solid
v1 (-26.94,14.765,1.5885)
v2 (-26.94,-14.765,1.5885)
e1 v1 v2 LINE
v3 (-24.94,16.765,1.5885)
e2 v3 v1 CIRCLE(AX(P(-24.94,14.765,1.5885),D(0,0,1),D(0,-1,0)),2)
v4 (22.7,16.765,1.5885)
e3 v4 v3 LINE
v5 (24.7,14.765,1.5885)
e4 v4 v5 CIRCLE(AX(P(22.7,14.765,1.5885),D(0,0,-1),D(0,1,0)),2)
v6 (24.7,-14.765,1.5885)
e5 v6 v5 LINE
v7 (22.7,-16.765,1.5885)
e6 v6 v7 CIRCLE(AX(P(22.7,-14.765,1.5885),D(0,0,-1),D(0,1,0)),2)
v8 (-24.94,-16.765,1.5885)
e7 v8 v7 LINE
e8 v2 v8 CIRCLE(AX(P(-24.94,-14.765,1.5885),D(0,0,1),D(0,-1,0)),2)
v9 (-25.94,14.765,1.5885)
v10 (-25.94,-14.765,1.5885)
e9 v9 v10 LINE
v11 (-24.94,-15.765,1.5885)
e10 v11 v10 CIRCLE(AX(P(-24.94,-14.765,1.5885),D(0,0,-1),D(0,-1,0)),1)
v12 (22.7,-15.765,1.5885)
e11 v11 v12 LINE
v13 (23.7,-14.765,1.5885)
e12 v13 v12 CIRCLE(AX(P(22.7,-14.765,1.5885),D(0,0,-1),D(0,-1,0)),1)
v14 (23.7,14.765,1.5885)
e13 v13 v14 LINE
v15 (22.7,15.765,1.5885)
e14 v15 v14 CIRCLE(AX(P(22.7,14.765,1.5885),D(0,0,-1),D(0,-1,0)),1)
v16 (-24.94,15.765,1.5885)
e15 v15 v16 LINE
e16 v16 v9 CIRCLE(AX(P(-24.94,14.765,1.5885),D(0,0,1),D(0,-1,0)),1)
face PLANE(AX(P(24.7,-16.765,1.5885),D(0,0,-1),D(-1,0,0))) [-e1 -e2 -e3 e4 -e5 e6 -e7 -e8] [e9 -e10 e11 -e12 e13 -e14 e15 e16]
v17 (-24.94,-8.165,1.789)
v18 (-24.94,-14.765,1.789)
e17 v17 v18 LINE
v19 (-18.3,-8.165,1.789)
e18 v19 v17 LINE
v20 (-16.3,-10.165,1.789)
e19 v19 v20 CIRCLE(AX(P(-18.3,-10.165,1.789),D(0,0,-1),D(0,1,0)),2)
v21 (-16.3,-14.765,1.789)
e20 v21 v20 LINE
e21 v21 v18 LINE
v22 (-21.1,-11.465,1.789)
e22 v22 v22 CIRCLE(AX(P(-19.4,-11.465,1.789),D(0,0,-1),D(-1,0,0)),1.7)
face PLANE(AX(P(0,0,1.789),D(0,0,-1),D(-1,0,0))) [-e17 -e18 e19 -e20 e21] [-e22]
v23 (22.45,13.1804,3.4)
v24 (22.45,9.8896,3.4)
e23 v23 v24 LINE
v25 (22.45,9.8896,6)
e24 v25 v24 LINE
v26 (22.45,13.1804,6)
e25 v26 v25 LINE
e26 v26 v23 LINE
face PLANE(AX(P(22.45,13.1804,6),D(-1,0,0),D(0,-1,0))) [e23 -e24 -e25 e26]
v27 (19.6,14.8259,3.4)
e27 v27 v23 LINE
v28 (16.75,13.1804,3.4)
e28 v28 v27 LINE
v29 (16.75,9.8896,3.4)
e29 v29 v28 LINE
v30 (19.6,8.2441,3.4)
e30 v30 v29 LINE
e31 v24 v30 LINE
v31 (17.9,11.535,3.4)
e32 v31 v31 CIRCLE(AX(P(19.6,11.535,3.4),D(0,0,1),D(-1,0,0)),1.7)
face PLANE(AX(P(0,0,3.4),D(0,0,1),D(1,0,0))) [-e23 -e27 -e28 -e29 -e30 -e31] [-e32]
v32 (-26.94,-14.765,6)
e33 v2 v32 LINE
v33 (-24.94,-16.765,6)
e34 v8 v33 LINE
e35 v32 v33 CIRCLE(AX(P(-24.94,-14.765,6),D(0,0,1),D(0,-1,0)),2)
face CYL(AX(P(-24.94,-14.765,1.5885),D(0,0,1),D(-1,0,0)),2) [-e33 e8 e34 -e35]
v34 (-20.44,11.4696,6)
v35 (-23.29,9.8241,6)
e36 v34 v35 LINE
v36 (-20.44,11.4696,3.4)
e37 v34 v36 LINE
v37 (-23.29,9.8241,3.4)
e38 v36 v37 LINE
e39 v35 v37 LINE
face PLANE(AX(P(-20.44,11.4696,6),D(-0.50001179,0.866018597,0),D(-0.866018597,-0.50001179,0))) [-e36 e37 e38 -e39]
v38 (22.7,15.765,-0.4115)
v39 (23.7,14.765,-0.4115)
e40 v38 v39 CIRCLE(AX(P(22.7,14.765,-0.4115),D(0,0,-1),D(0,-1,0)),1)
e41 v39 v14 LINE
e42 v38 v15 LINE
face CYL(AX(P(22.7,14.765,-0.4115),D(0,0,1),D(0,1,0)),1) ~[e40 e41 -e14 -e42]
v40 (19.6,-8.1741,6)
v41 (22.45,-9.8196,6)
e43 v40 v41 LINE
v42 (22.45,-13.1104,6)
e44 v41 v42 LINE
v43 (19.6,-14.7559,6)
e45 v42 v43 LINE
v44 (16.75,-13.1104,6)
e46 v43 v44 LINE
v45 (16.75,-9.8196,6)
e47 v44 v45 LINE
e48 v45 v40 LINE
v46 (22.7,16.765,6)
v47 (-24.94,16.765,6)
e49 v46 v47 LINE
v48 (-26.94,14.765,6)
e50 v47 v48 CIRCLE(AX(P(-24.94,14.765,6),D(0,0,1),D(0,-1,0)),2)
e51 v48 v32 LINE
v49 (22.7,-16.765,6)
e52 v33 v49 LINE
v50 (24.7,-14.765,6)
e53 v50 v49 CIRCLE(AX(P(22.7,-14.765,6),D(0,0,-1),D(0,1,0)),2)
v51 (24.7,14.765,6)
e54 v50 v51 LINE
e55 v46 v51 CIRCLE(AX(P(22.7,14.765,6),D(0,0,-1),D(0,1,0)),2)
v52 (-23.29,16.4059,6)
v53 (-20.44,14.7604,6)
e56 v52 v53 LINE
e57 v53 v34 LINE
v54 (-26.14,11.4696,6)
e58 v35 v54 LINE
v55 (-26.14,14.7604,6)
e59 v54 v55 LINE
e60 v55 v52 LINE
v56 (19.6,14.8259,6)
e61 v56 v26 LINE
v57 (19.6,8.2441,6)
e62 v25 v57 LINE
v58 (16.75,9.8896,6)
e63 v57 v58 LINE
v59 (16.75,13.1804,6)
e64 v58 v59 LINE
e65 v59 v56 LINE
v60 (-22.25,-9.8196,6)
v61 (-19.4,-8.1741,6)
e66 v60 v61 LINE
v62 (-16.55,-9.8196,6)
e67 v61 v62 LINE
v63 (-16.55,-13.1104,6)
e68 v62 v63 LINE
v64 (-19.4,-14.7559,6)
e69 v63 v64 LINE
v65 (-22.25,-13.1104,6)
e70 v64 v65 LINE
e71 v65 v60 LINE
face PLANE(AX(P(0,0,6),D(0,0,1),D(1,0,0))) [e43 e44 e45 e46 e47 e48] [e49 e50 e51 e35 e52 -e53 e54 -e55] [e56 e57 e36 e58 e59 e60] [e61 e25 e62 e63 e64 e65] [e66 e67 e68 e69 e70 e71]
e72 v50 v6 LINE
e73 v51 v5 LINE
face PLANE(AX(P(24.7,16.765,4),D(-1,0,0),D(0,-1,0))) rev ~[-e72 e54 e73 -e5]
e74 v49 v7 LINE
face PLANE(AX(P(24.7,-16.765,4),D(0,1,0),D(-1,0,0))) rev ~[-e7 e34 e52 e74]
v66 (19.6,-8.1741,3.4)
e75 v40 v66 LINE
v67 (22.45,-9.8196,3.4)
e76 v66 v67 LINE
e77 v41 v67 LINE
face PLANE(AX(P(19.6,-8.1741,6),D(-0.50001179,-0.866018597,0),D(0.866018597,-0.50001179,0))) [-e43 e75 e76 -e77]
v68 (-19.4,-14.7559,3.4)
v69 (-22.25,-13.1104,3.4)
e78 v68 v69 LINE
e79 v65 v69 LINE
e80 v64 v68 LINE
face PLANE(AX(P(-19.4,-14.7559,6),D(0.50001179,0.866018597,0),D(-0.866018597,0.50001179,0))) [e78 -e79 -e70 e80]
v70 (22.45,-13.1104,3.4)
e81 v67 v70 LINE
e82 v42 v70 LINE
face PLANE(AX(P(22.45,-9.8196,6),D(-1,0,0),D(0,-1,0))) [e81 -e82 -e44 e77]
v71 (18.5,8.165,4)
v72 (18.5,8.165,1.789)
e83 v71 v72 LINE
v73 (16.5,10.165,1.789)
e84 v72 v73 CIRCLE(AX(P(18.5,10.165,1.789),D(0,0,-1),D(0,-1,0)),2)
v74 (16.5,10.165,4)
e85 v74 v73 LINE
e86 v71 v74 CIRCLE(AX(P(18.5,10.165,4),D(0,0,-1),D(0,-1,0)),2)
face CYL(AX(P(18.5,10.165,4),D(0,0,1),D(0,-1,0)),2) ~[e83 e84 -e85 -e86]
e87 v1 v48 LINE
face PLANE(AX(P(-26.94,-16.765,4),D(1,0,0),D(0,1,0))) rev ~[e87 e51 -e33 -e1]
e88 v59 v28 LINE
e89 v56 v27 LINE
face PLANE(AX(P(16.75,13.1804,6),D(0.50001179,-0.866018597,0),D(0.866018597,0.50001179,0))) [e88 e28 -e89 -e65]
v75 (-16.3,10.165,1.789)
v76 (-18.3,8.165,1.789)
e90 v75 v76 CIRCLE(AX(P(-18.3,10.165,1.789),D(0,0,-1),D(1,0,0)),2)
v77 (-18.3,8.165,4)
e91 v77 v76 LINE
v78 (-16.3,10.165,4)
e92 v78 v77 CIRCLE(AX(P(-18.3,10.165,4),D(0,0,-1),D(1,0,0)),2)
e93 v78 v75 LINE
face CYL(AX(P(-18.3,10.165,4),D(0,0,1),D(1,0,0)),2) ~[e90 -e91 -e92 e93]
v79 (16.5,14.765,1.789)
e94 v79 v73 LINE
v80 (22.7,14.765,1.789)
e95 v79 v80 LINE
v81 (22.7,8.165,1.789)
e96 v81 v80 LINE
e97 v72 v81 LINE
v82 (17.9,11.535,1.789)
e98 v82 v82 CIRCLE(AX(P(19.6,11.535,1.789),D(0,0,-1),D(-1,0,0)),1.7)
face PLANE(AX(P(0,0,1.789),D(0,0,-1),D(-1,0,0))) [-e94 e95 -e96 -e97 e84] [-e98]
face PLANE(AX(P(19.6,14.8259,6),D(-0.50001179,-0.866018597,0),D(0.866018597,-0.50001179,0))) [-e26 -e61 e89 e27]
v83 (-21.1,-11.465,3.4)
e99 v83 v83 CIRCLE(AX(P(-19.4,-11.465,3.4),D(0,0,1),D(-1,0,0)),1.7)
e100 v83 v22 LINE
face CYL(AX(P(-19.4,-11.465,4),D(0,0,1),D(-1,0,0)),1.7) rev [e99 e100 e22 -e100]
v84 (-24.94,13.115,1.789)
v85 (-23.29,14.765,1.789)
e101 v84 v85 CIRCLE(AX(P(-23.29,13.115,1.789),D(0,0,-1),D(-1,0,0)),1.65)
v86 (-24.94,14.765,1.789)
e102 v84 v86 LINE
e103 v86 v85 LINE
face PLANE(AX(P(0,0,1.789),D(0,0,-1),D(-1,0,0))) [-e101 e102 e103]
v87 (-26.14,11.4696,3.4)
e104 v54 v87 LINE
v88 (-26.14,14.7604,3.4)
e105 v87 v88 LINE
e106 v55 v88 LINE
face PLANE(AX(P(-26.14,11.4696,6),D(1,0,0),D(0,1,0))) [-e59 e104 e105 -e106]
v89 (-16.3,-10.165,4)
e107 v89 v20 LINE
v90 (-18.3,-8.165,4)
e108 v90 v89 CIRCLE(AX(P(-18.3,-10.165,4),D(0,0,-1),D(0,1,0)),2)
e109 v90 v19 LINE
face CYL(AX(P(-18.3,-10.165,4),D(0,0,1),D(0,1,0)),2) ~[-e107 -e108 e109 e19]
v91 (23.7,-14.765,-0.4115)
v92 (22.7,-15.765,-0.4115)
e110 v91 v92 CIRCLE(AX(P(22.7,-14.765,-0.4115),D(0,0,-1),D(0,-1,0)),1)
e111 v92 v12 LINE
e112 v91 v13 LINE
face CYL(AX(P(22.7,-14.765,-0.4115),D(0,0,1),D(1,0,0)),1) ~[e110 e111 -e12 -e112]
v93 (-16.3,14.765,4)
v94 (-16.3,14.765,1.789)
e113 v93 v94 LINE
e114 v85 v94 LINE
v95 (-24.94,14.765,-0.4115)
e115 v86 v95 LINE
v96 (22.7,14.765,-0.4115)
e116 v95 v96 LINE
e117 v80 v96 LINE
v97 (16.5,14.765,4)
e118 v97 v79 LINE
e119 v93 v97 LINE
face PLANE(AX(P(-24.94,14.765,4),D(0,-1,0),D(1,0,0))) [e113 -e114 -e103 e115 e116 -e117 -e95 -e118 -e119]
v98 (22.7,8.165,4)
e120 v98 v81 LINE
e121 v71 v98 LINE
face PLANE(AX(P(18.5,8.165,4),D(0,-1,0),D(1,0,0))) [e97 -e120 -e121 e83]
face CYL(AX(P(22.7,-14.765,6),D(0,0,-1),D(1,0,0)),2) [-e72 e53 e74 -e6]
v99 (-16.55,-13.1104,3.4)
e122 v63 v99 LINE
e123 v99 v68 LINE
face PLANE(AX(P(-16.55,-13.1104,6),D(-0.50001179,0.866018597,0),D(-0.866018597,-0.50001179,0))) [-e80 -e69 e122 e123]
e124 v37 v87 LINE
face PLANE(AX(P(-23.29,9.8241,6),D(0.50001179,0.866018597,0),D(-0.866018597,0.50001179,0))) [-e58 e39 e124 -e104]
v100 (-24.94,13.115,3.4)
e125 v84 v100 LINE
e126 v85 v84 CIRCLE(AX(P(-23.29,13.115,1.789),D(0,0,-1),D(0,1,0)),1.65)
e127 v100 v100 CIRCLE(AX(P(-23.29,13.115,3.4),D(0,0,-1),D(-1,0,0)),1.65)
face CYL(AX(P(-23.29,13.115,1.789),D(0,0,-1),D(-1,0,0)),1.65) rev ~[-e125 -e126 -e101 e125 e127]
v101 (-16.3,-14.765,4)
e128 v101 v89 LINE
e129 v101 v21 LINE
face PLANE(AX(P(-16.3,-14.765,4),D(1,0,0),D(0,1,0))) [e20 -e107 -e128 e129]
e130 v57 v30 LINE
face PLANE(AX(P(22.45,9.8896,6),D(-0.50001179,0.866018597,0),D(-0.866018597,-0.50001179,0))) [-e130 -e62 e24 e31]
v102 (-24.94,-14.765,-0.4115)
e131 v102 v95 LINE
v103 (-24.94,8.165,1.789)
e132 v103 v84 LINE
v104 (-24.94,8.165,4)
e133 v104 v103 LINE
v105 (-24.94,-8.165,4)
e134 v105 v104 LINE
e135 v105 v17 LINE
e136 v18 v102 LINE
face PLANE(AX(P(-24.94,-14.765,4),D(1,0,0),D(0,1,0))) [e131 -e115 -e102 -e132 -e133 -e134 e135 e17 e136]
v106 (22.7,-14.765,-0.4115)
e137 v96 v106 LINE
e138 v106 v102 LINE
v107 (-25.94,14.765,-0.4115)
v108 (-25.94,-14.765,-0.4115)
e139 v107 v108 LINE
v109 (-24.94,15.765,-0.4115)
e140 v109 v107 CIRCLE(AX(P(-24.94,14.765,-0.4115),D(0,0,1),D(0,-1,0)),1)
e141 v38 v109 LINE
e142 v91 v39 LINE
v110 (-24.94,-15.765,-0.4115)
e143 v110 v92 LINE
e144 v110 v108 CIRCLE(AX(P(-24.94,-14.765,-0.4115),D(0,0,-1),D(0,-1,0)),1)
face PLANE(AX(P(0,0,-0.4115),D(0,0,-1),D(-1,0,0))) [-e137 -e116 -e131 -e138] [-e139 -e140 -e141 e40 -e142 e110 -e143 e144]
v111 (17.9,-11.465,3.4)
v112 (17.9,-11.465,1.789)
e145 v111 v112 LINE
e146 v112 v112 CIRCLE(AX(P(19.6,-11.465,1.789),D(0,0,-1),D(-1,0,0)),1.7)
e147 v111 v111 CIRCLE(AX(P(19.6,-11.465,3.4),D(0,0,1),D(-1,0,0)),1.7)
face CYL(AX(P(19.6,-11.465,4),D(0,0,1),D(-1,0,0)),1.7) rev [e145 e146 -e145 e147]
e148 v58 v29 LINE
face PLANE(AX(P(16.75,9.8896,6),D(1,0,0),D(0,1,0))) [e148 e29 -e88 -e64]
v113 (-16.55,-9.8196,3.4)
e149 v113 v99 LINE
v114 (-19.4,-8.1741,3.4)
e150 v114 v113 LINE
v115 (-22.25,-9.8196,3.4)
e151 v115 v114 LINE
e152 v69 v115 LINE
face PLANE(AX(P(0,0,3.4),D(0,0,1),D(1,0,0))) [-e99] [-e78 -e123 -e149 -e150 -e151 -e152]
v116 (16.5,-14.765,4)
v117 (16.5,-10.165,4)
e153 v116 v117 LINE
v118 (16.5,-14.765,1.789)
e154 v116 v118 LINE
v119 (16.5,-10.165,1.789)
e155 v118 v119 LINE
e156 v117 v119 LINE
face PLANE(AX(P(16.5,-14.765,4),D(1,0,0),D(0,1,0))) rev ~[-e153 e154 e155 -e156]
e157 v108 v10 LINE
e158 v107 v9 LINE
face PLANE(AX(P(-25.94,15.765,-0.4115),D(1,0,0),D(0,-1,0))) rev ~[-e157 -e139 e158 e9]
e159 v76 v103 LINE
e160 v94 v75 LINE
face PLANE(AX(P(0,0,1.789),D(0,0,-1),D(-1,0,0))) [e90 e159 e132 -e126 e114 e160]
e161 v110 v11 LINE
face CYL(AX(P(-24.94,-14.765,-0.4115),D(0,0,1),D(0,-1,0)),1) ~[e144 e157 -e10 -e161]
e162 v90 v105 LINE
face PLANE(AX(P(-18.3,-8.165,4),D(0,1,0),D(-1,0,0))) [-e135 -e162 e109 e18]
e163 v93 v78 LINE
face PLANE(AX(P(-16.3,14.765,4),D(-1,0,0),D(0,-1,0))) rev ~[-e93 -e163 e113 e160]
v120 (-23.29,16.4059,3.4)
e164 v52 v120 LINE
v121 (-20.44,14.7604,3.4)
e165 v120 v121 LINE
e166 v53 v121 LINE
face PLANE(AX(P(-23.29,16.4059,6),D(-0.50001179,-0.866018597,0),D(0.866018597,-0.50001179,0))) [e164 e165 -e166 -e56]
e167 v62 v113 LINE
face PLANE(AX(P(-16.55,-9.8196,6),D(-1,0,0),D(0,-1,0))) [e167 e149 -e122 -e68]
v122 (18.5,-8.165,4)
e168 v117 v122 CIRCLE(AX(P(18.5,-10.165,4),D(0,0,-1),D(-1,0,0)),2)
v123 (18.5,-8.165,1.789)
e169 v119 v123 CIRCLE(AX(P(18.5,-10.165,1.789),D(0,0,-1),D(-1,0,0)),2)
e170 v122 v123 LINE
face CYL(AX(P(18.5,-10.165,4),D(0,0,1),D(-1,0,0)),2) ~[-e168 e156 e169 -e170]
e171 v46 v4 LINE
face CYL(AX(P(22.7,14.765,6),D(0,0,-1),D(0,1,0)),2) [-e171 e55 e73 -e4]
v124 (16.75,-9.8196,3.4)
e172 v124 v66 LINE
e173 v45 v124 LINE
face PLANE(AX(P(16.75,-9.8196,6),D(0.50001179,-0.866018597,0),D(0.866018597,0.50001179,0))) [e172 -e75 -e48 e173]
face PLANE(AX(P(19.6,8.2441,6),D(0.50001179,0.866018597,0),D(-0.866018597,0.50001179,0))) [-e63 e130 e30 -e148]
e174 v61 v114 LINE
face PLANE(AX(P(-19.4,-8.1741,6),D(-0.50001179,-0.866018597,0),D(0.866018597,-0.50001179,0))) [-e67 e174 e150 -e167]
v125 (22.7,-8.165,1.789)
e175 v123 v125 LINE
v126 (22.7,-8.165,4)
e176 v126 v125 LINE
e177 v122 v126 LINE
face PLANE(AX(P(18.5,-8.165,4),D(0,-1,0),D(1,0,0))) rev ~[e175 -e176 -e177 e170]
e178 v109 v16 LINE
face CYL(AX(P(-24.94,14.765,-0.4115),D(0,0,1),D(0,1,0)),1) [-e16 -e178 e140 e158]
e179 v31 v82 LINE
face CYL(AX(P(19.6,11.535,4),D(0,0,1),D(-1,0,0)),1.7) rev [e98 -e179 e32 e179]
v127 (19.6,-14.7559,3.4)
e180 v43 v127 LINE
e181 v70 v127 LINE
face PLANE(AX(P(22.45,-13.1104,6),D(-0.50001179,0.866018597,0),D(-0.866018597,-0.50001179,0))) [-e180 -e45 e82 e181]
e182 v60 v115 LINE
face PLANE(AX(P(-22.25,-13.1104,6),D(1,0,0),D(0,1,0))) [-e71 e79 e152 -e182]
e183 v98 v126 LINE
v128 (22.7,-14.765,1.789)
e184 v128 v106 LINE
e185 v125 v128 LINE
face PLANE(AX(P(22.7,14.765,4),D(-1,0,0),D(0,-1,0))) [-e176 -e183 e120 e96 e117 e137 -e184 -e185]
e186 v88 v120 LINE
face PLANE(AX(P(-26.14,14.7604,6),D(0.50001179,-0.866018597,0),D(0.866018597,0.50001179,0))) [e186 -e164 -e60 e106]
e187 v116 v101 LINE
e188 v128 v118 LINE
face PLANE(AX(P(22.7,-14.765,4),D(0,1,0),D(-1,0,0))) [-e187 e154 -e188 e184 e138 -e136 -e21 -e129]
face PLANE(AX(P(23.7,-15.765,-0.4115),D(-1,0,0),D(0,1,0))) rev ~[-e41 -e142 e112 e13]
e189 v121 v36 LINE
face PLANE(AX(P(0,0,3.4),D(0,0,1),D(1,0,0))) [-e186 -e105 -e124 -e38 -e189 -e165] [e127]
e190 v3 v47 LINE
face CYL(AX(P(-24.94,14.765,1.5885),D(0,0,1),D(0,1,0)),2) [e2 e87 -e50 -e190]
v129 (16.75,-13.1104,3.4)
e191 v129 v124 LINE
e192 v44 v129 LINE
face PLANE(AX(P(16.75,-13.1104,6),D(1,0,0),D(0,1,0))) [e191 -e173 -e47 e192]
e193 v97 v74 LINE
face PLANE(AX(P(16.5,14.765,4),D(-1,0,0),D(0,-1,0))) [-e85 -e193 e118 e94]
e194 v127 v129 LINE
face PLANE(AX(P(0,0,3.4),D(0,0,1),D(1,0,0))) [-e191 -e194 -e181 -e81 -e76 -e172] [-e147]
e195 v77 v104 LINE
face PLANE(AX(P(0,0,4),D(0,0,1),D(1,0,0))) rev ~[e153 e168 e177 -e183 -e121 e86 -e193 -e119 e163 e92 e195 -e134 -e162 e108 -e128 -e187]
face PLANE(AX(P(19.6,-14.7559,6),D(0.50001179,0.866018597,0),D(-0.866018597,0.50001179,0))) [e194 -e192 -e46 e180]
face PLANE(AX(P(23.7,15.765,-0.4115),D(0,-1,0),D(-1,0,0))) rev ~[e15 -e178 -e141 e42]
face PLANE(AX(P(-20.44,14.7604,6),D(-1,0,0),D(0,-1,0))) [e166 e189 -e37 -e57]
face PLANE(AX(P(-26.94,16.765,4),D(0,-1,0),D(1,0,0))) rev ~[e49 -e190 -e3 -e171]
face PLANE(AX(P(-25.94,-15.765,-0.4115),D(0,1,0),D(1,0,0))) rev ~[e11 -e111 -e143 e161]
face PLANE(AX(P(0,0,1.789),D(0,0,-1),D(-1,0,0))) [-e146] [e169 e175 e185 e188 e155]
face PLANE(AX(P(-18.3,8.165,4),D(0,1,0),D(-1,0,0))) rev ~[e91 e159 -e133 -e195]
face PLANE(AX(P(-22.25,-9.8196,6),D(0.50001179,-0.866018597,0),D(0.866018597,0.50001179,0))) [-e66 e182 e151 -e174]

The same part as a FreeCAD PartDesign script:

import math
import FreeCAD as App
import Part
import Sketcher
Q = App.Units.Quantity


def edges_at(feature, points):
    """Names of the edges that pass closest to the given points."""
    edges = feature.Shape.Edges
    near = lambda p: min(range(len(edges)), key=lambda i: edges[i].distToShape(Part.Vertex(*p))[0])
    return sorted({f"Edge{near(p) + 1}" for p in points})

doc = App.newDocument("Part")
params = doc.addObject("Spreadsheet::Sheet", "Params")
for row, (alias, value) in enumerate([
    ("sketch1_width", "51.64 mm"),
    ("sketch1_height", "33.53 mm"),
    ("pad1_length", "2 mm"),
    ("sketch2_width", "51.64 mm"),
    ("sketch2_height", "33.53 mm"),
    ("pad2_length", "4.4115 mm"),
    ("sketch3_width", "51.64 mm"),
    ("sketch3_height", "33.53 mm"),
    ("pocket1_length", "2 mm"),
    ("sketch4_radius", "2 mm"),
    ("sketch4_width", "6.2 mm"),
    ("sketch4_height", "6.6 mm"),
    ("sketch4_diameter", "3.4 mm"),
    ("sketch4_width2", "8.64 mm"),
    ("pad3_length", "2.211 mm"),
    ("sketch5_diameter", "3.4 mm"),
    ("pocket2_length", "2 mm"),
    ("pocket3_length", "2.6 mm"),
    ("fillet_radius", "2 mm"),
    ("fillet2_radius", "1 mm"),
    ("sketch7_diameter", "3.3 mm"),
    ("pocket4_length", "10 mm"),
    ("pocket5_length", "2.6 mm"),
], start=1):
    params.set(f"A{row}", alias)
    params.set(f"B{row}", "=" + value)
    params.setAlias(f"B{row}", alias)

body = doc.addObject("PartDesign::Body", "Body")

# Sketch on XY plane
sketch1 = body.newObject("Sketcher::SketchObject", "Sketch")
sketch1.AttachmentSupport = (doc.getObject("XY_Plane"), [""])
sketch1.MapMode = "FlatFace"
sketch1.AttachmentOffset = App.Placement(App.Vector(0, 0, 6), App.Rotation())
sketch1.addGeometry([
    Part.LineSegment(App.Vector(24.7, 16.765, 0), App.Vector(-26.94, 16.765, 0)),
    Part.LineSegment(App.Vector(-26.94, 16.765, 0), App.Vector(-26.94, -16.765, 0)),
    Part.LineSegment(App.Vector(-26.94, -16.765, 0), App.Vector(24.7, -16.765, 0)),
    Part.LineSegment(App.Vector(24.7, -16.765, 0), App.Vector(24.7, 16.765, 0)),
], False)
sketch1.addConstraint([
    Sketcher.Constraint("Coincident", 0, 2, 1, 1),
    Sketcher.Constraint("Coincident", 1, 2, 2, 1),
    Sketcher.Constraint("Coincident", 2, 2, 3, 1),
    Sketcher.Constraint("Coincident", 3, 2, 0, 1),
    Sketcher.Constraint("Horizontal", 0),
    Sketcher.Constraint("Vertical", 1),
    Sketcher.Constraint("Horizontal", 2),
    Sketcher.Constraint("Vertical", 3),
    Sketcher.Constraint("DistanceX", 0, 2, 0, 1, 51.64),
    Sketcher.Constraint("DistanceY", 1, 2, 1, 1, 33.53),
    Sketcher.Constraint("DistanceX", -1, 1, 2, 2, 24.7),
    Sketcher.Constraint("DistanceY", -1, 1, 0, 2, 16.765),
])
sketch1.setExpression("Constraints[8]", "Params.sketch1_width")
sketch1.setExpression("Constraints[9]", "Params.sketch1_height")
pad1 = body.newObject("PartDesign::Pad", "Pad")
pad1.Profile = sketch1
pad1.setExpression("Length", "Params.pad1_length")
pad1.Reversed = True

# Sketch on XY plane
sketch2 = body.newObject("Sketcher::SketchObject", "Sketch001")
sketch2.AttachmentSupport = (doc.getObject("XY_Plane"), [""])
sketch2.MapMode = "FlatFace"
sketch2.AttachmentOffset = App.Placement(App.Vector(0, 0, 4), App.Rotation())
sketch2.addGeometry([
    Part.LineSegment(App.Vector(-26.94, 16.765, 0), App.Vector(24.7, 16.765, 0)),  # 0
    Part.LineSegment(App.Vector(24.7, 16.765, 0), App.Vector(24.7, -16.765, 0)),  # 1
    Part.LineSegment(App.Vector(24.7, -16.765, 0), App.Vector(-26.94, -16.765, 0)),  # 2
    Part.LineSegment(App.Vector(-26.94, -16.765, 0), App.Vector(-26.94, 16.765, 0)),  # 3
    Part.LineSegment(App.Vector(22.7, -14.765, 0), App.Vector(22.7, 14.765, 0)),  # 4
    Part.LineSegment(App.Vector(22.7, 14.765, 0), App.Vector(-24.94, 14.765, 0)),  # 5
    Part.LineSegment(App.Vector(-24.94, 14.765, 0), App.Vector(-24.94, -14.765, 0)),  # 6
    Part.LineSegment(App.Vector(-24.94, -14.765, 0), App.Vector(22.7, -14.765, 0)),  # 7
], False)
sketch2.addConstraint([
    Sketcher.Constraint("Coincident", 0, 2, 1, 1),
    Sketcher.Constraint("Coincident", 1, 2, 2, 1),
    Sketcher.Constraint("Coincident", 2, 2, 3, 1),
    Sketcher.Constraint("Coincident", 3, 2, 0, 1),
    Sketcher.Constraint("Coincident", 4, 2, 5, 1),
    Sketcher.Constraint("Coincident", 5, 2, 6, 1),
    Sketcher.Constraint("Coincident", 6, 2, 7, 1),
    Sketcher.Constraint("Coincident", 7, 2, 4, 1),
    Sketcher.Constraint("Horizontal", 0),
    Sketcher.Constraint("Vertical", 1),
    Sketcher.Constraint("Horizontal", 2),
    Sketcher.Constraint("Vertical", 3),
    Sketcher.Constraint("Vertical", 4),
    Sketcher.Constraint("Horizontal", 5),
    Sketcher.Constraint("Vertical", 6),
    Sketcher.Constraint("Horizontal", 7),
    Sketcher.Constraint("DistanceX", 4, 2, 0, 2, 2.0),
    Sketcher.Constraint("DistanceY", 4, 2, 0, 2, 2.0),
    Sketcher.Constraint("DistanceX", 3, 2, 5, 2, 2.0),
    Sketcher.Constraint("DistanceY", 2, 2, 6, 2, 2.0),
    Sketcher.Constraint("DistanceX", 0, 1, 0, 2, 51.64),
    Sketcher.Constraint("DistanceY", 1, 2, 1, 1, 33.53),
    Sketcher.Constraint("DistanceX", -1, 1, 0, 2, 24.7),
    Sketcher.Constraint("DistanceY", -1, 1, 0, 2, 16.765),
])
sketch2.setExpression("Constraints[20]", "Params.sketch2_width")
sketch2.setExpression("Constraints[21]", "Params.sketch2_height")
pad2 = body.newObject("PartDesign::Pad", "Pad001")
pad2.Profile = sketch2
pad2.setExpression("Length", "Params.pad2_length")
pad2.Reversed = True

# Sketch on XY plane
sketch3 = body.newObject("Sketcher::SketchObject", "Sketch002")
sketch3.AttachmentSupport = (doc.getObject("XY_Plane"), [""])
sketch3.MapMode = "FlatFace"
sketch3.AttachmentOffset = App.Placement(App.Vector(0, 0, -0.4115), App.Rotation())
sketch3.addGeometry([
    Part.LineSegment(App.Vector(24.7, 16.765, 0), App.Vector(24.7, -16.765, 0)),  # 0
    Part.LineSegment(App.Vector(24.7, -16.765, 0), App.Vector(-26.94, -16.765, 0)),  # 1
    Part.LineSegment(App.Vector(-26.94, -16.765, 0), App.Vector(-26.94, 16.765, 0)),  # 2
    Part.LineSegment(App.Vector(-26.94, 16.765, 0), App.Vector(24.7, 16.765, 0)),  # 3
    Part.LineSegment(App.Vector(23.7, 15.765, 0), App.Vector(-25.94, 15.765, 0)),  # 4
    Part.LineSegment(App.Vector(-25.94, 15.765, 0), App.Vector(-25.94, -15.765, 0)),  # 5
    Part.LineSegment(App.Vector(-25.94, -15.765, 0), App.Vector(23.7, -15.765, 0)),  # 6
    Part.LineSegment(App.Vector(23.7, -15.765, 0), App.Vector(23.7, 15.765, 0)),  # 7
], False)
sketch3.addConstraint([
    Sketcher.Constraint("Coincident", 0, 2, 1, 1),
    Sketcher.Constraint("Coincident", 1, 2, 2, 1),
    Sketcher.Constraint("Coincident", 2, 2, 3, 1),
    Sketcher.Constraint("Coincident", 3, 2, 0, 1),
    Sketcher.Constraint("Coincident", 4, 2, 5, 1),
    Sketcher.Constraint("Coincident", 5, 2, 6, 1),
    Sketcher.Constraint("Coincident", 6, 2, 7, 1),
    Sketcher.Constraint("Coincident", 7, 2, 4, 1),
    Sketcher.Constraint("Vertical", 0),
    Sketcher.Constraint("Horizontal", 1),
    Sketcher.Constraint("Vertical", 2),
    Sketcher.Constraint("Horizontal", 3),
    Sketcher.Constraint("Horizontal", 4),
    Sketcher.Constraint("Vertical", 5),
    Sketcher.Constraint("Horizontal", 6),
    Sketcher.Constraint("Vertical", 7),
    Sketcher.Constraint("DistanceX", 2, 2, 4, 2, 1.0),
    Sketcher.Constraint("DistanceY", 4, 2, 2, 2, 1.0),
    Sketcher.Constraint("DistanceY", 1, 2, 5, 2, 1.0),
    Sketcher.Constraint("DistanceX", 6, 2, 0, 2, 1.0),
    Sketcher.Constraint("DistanceX", 1, 2, 1, 1, 51.64),
    Sketcher.Constraint("DistanceY", 0, 2, 0, 1, 33.53),
    Sketcher.Constraint("DistanceX", -1, 1, 0, 2, 24.7),
    Sketcher.Constraint("DistanceY", 0, 2, -1, 1, 16.765),
])
sketch3.setExpression("Constraints[20]", "Params.sketch3_width")
sketch3.setExpression("Constraints[21]", "Params.sketch3_height")
pocket1 = body.newObject("PartDesign::Pocket", "Pocket")
pocket1.Profile = sketch3
pocket1.setExpression("Length", "Params.pocket1_length")
pocket1.Reversed = True

# Sketch on XY plane
sketch4 = body.newObject("Sketcher::SketchObject", "Sketch003")
sketch4.AttachmentSupport = (doc.getObject("XY_Plane"), [""])
sketch4.MapMode = "FlatFace"
sketch4.AttachmentOffset = App.Placement(App.Vector(0, 0, 4), App.Rotation())
sketch4.addGeometry([
    Part.LineSegment(App.Vector(22.7, -8.165, 0), App.Vector(22.7, -14.765, 0)),  # 0
    Part.LineSegment(App.Vector(22.7, -14.765, 0), App.Vector(16.5, -14.765, 0)),  # 1
    Part.LineSegment(App.Vector(16.5, -14.765, 0), App.Vector(16.5, -10.165, 0)),  # 2
    Part.ArcOfCircle(Part.Circle(App.Vector(18.5, -10.165, 0), App.Vector(0, 0, 1), 2), math.radians(90), math.radians(180)),  # 3
    Part.LineSegment(App.Vector(18.5, -8.165, 0), App.Vector(22.7, -8.165, 0)),  # 4
    Part.Circle(App.Vector(19.6, -11.465, 0), App.Vector(0, 0, 1), 1.7),  # 5
    Part.LineSegment(App.Vector(-16.3, -10.165, 0), App.Vector(-16.3, -14.765, 0)),  # 6
    Part.LineSegment(App.Vector(-16.3, -14.765, 0), App.Vector(-24.94, -14.765, 0)),  # 7
    Part.LineSegment(App.Vector(-24.94, -14.765, 0), App.Vector(-24.94, -8.165, 0)),  # 8
    Part.LineSegment(App.Vector(-24.94, -8.165, 0), App.Vector(-18.3, -8.165, 0)),  # 9
    Part.ArcOfCircle(Part.Circle(App.Vector(-18.3, -10.165, 0), App.Vector(0, 0, 1), 2), math.radians(0), math.radians(90)),  # 10
    Part.Circle(App.Vector(-19.4, -11.465, 0), App.Vector(0, 0, 1), 1.7),  # 11
    Part.LineSegment(App.Vector(-24.94, 8.165, 0), App.Vector(-24.94, 14.765, 0)),  # 12
    Part.LineSegment(App.Vector(-24.94, 14.765, 0), App.Vector(-16.3, 14.765, 0)),  # 13
    Part.LineSegment(App.Vector(-16.3, 14.765, 0), App.Vector(-16.3, 10.165, 0)),  # 14
    Part.ArcOfCircle(Part.Circle(App.Vector(-18.3, 10.165, 0), App.Vector(0, 0, 1), 2), math.radians(-90), math.radians(0)),  # 15
    Part.LineSegment(App.Vector(-18.3, 8.165, 0), App.Vector(-24.94, 8.165, 0)),  # 16
    Part.LineSegment(App.Vector(16.5, 10.165, 0), App.Vector(16.5, 14.765, 0)),  # 17
    Part.LineSegment(App.Vector(16.5, 14.765, 0), App.Vector(22.7, 14.765, 0)),  # 18
    Part.LineSegment(App.Vector(22.7, 14.765, 0), App.Vector(22.7, 8.165, 0)),  # 19
    Part.LineSegment(App.Vector(22.7, 8.165, 0), App.Vector(18.5, 8.165, 0)),  # 20
    Part.ArcOfCircle(Part.Circle(App.Vector(18.5, 10.165, 0), App.Vector(0, 0, 1), 2), math.radians(180), math.radians(270)),  # 21
    Part.Circle(App.Vector(19.6, 11.535, 0), App.Vector(0, 0, 1), 1.7),  # 22
], False)
sketch4.addConstraint([
    Sketcher.Constraint("Coincident", 0, 2, 1, 1),
    Sketcher.Constraint("Coincident", 1, 2, 2, 1),
    Sketcher.Constraint("Tangent", 2, 2, 3, 2),
    Sketcher.Constraint("Tangent", 3, 1, 4, 1),
    Sketcher.Constraint("Coincident", 4, 2, 0, 1),
    Sketcher.Constraint("Coincident", 6, 2, 7, 1),
    Sketcher.Constraint("Coincident", 7, 2, 8, 1),
    Sketcher.Constraint("Coincident", 8, 2, 9, 1),
    Sketcher.Constraint("Tangent", 9, 2, 10, 2),
    Sketcher.Constraint("Tangent", 10, 1, 6, 1),
    Sketcher.Constraint("Coincident", 12, 2, 13, 1),
    Sketcher.Constraint("Coincident", 13, 2, 14, 1),
    Sketcher.Constraint("Tangent", 14, 2, 15, 2),
    Sketcher.Constraint("Tangent", 15, 1, 16, 1),
    Sketcher.Constraint("Coincident", 16, 2, 12, 1),
    Sketcher.Constraint("Coincident", 17, 2, 18, 1),
    Sketcher.Constraint("Coincident", 18, 2, 19, 1),
    Sketcher.Constraint("Coincident", 19, 2, 20, 1),
    Sketcher.Constraint("Tangent", 20, 2, 21, 2),
    Sketcher.Constraint("Tangent", 21, 1, 17, 1),
    Sketcher.Constraint("Vertical", 0),
    Sketcher.Constraint("Horizontal", 1),
    Sketcher.Constraint("Vertical", 2),
    Sketcher.Constraint("Horizontal", 4),
    Sketcher.Constraint("Vertical", 6),
    Sketcher.Constraint("Horizontal", 7),
    Sketcher.Constraint("Vertical", 8),
    Sketcher.Constraint("Horizontal", 9),
    Sketcher.Constraint("Vertical", 12),
    Sketcher.Constraint("Horizontal", 13),
    Sketcher.Constraint("Vertical", 14),
    Sketcher.Constraint("Horizontal", 16),
    Sketcher.Constraint("Vertical", 17),
    Sketcher.Constraint("Horizontal", 18),
    Sketcher.Constraint("Vertical", 19),
    Sketcher.Constraint("Horizontal", 20),
    Sketcher.Constraint("Equal", 3, 10),
    Sketcher.Constraint("Equal", 5, 11),
    Sketcher.Constraint("Equal", 10, 15),
    Sketcher.Constraint("Equal", 15, 21),
    Sketcher.Constraint("Equal", 11, 22),
    Sketcher.Constraint("Symmetric", 10, 3, 15, 3, -1),
    Sketcher.Constraint("Symmetric", 3, 3, 21, 3, -1),
    Sketcher.Constraint("Symmetric", 7, 2, 12, 2, -1),
    Sketcher.Constraint("Symmetric", 0, 2, 18, 2, -1),
    Sketcher.Constraint("Horizontal", 3, 3, 10, 3),
    Sketcher.Constraint("Horizontal", 5, 3, 11, 3),
    Sketcher.Constraint("Horizontal", 1, 2, 6, 2),
    Sketcher.Constraint("Vertical", 5, 3, 22, 3),
    Sketcher.Constraint("Radius", 3, 2.0),
    Sketcher.Constraint("DistanceX", 1, 2, 1, 1, 6.2),
    Sketcher.Constraint("DistanceY", 0, 2, 0, 1, 6.6),
    Sketcher.Constraint("Diameter", 5, 3.4),
    Sketcher.Constraint("DistanceX", 5, 3, 0, 2, 3.1),
    Sketcher.Constraint("DistanceY", 0, 2, 5, 3, 3.3),
    Sketcher.Constraint("DistanceX", 11, 3, 6, 2, 3.1),
    Sketcher.Constraint("DistanceX", 11, 3, 5, 3, 39.0),
    Sketcher.Constraint("DistanceY", 5, 3, 22, 3, 23.0),
    Sketcher.Constraint("DistanceX", 7, 2, 7, 1, 8.64),
    Sketcher.Constraint("DistanceX", -1, 1, 3, 3, 18.5),
    Sketcher.Constraint("DistanceY", 10, 3, 15, 3, 20.33),
])
sketch4.setExpression("Constraints[49]", "Params.sketch4_radius")
sketch4.setExpression("Constraints[50]", "Params.sketch4_width")
sketch4.setExpression("Constraints[51]", "Params.sketch4_height")
sketch4.setExpression("Constraints[52]", "Params.sketch4_diameter")
sketch4.setExpression("Constraints[58]", "Params.sketch4_width2")
pad3 = body.newObject("PartDesign::Pad", "Pad002")
pad3.Profile = sketch4
pad3.setExpression("Length", "Params.pad3_length")
pad3.Reversed = True

# Sketch on XY plane
sketch5 = body.newObject("Sketcher::SketchObject", "Sketch004")
sketch5.AttachmentSupport = (doc.getObject("XY_Plane"), [""])
sketch5.MapMode = "FlatFace"
sketch5.AttachmentOffset = App.Placement(App.Vector(0, 0, 4), App.Rotation())
sketch5.addGeometry([
    Part.Circle(App.Vector(19.6, 11.535, 0), App.Vector(0, 0, 1), 1.7),
    Part.Circle(App.Vector(19.6, -11.465, 0), App.Vector(0, 0, 1), 1.7),
    Part.Circle(App.Vector(-19.4, -11.465, 0), App.Vector(0, 0, 1), 1.7),
], False)
sketch5.addConstraint([
    Sketcher.Constraint("Equal", 0, 1),
    Sketcher.Constraint("Equal", 1, 2),
    Sketcher.Constraint("Horizontal", 1, 3, 2, 3),
    Sketcher.Constraint("Vertical", 0, 3, 1, 3),
    Sketcher.Constraint("Diameter", 0, 3.4),
    Sketcher.Constraint("DistanceY", 1, 3, 0, 3, 23.0),
    Sketcher.Constraint("DistanceX", 2, 3, 1, 3, 39.0),
    Sketcher.Constraint("DistanceX", -1, 1, 0, 3, 19.6),
    Sketcher.Constraint("DistanceY", -1, 1, 0, 3, 11.535),
])
sketch5.setExpression("Constraints[4]", "Params.sketch5_diameter")
pocket2 = body.newObject("PartDesign::Pocket", "Pocket001")
pocket2.Profile = sketch5
pocket2.setExpression("Length", "Params.pocket2_length")
pocket2.Reversed = True

# Sketch on XY plane
sketch6 = body.newObject("Sketcher::SketchObject", "Sketch005")
sketch6.AttachmentSupport = (doc.getObject("XY_Plane"), [""])
sketch6.MapMode = "FlatFace"
sketch6.AttachmentOffset = App.Placement(App.Vector(0, 0, 6), App.Rotation())
sketch6.addGeometry([
    Part.LineSegment(App.Vector(19.6, -8.1741, 0), App.Vector(16.75, -9.8196, 0)),  # 0
    Part.LineSegment(App.Vector(16.75, -9.8196, 0), App.Vector(16.75, -13.1104, 0)),  # 1
    Part.LineSegment(App.Vector(16.75, -13.1104, 0), App.Vector(19.6, -14.7559, 0)),  # 2
    Part.LineSegment(App.Vector(19.6, -14.7559, 0), App.Vector(22.45, -13.1104, 0)),  # 3
    Part.LineSegment(App.Vector(22.45, -13.1104, 0), App.Vector(22.45, -9.8196, 0)),  # 4
    Part.LineSegment(App.Vector(22.45, -9.8196, 0), App.Vector(19.6, -8.1741, 0)),  # 5
    Part.LineSegment(App.Vector(19.6, 14.8259, 0), App.Vector(16.75, 13.1804, 0)),  # 6
    Part.LineSegment(App.Vector(16.75, 13.1804, 0), App.Vector(16.75, 9.8896, 0)),  # 7
    Part.LineSegment(App.Vector(16.75, 9.8896, 0), App.Vector(19.6, 8.2441, 0)),  # 8
    Part.LineSegment(App.Vector(19.6, 8.2441, 0), App.Vector(22.45, 9.8896, 0)),  # 9
    Part.LineSegment(App.Vector(22.45, 9.8896, 0), App.Vector(22.45, 13.1804, 0)),  # 10
    Part.LineSegment(App.Vector(22.45, 13.1804, 0), App.Vector(19.6, 14.8259, 0)),  # 11
    Part.LineSegment(App.Vector(-19.4, -8.1741, 0), App.Vector(-22.25, -9.8196, 0)),  # 12
    Part.LineSegment(App.Vector(-22.25, -9.8196, 0), App.Vector(-22.25, -13.1104, 0)),  # 13
    Part.LineSegment(App.Vector(-22.25, -13.1104, 0), App.Vector(-19.4, -14.7559, 0)),  # 14
    Part.LineSegment(App.Vector(-19.4, -14.7559, 0), App.Vector(-16.55, -13.1104, 0)),  # 15
    Part.LineSegment(App.Vector(-16.55, -13.1104, 0), App.Vector(-16.55, -9.8196, 0)),  # 16
    Part.LineSegment(App.Vector(-16.55, -9.8196, 0), App.Vector(-19.4, -8.1741, 0)),  # 17
], False)
sketch6.addConstraint([
    Sketcher.Constraint("Coincident", 0, 2, 1, 1),
    Sketcher.Constraint("Coincident", 1, 2, 2, 1),
    Sketcher.Constraint("Coincident", 2, 2, 3, 1),
    Sketcher.Constraint("Coincident", 3, 2, 4, 1),
    Sketcher.Constraint("Coincident", 4, 2, 5, 1),
    Sketcher.Constraint("Coincident", 5, 2, 0, 1),
    Sketcher.Constraint("Coincident", 6, 2, 7, 1),
    Sketcher.Constraint("Coincident", 7, 2, 8, 1),
    Sketcher.Constraint("Coincident", 8, 2, 9, 1),
    Sketcher.Constraint("Coincident", 9, 2, 10, 1),
    Sketcher.Constraint("Coincident", 10, 2, 11, 1),
    Sketcher.Constraint("Coincident", 11, 2, 6, 1),
    Sketcher.Constraint("Coincident", 12, 2, 13, 1),
    Sketcher.Constraint("Coincident", 13, 2, 14, 1),
    Sketcher.Constraint("Coincident", 14, 2, 15, 1),
    Sketcher.Constraint("Coincident", 15, 2, 16, 1),
    Sketcher.Constraint("Coincident", 16, 2, 17, 1),
    Sketcher.Constraint("Coincident", 17, 2, 12, 1),
    Sketcher.Constraint("Vertical", 1),
    Sketcher.Constraint("Vertical", 4),
    Sketcher.Constraint("Vertical", 7),
    Sketcher.Constraint("Vertical", 10),
    Sketcher.Constraint("Vertical", 13),
    Sketcher.Constraint("Vertical", 16),
    Sketcher.Constraint("Parallel", 0, 3),
    Sketcher.Constraint("Parallel", 2, 5),
    Sketcher.Constraint("Parallel", 3, 6),
    Sketcher.Constraint("Parallel", 5, 8),
    Sketcher.Constraint("Parallel", 6, 9),
    Sketcher.Constraint("Parallel", 8, 11),
    Sketcher.Constraint("Parallel", 9, 12),
    Sketcher.Constraint("Parallel", 11, 14),
    Sketcher.Constraint("Parallel", 12, 15),
    Sketcher.Constraint("Parallel", 14, 17),
    Sketcher.Constraint("Horizontal", 1, 2, 3, 2),
    Sketcher.Constraint("Horizontal", 0, 2, 4, 2),
    Sketcher.Constraint("Horizontal", 7, 2, 9, 2),
    Sketcher.Constraint("Horizontal", 6, 2, 10, 2),
    Sketcher.Constraint("Horizontal", 4, 2, 12, 2),
    Sketcher.Constraint("Horizontal", 3, 2, 13, 2),
    Sketcher.Constraint("Horizontal", 2, 2, 14, 2),
    Sketcher.Constraint("Horizontal", 13, 2, 15, 2),
    Sketcher.Constraint("Horizontal", 12, 2, 16, 2),
    Sketcher.Constraint("Vertical", 2, 2, 5, 2),
    Sketcher.Constraint("Vertical", 1, 2, 6, 2),
    Sketcher.Constraint("Vertical", 5, 2, 8, 2),
    Sketcher.Constraint("Equal", 4, 7),
    Sketcher.Constraint("DistanceX", 1, 2, 3, 2, 5.7),
    Sketcher.Constraint("Angle", 0, Q("-149.9992 deg")),
    Sketcher.Constraint("DistanceY", 0, 2, 6, 2, 23.0),
    Sketcher.Constraint("DistanceX", 12, 2, 0, 2, 39.0),
    Sketcher.Constraint("DistanceX", -1, 1, 2, 2, 19.6),
    Sketcher.Constraint("DistanceY", 1, 2, 1, 1, 3.2908),
    Sketcher.Constraint("DistanceY", 2, 2, -1, 1, 14.756),
])
pocket3 = body.newObject("PartDesign::Pocket", "Pocket002")
pocket3.Profile = sketch6
pocket3.setExpression("Length", "Params.pocket3_length")
doc.recompute()

fillet = body.newObject("PartDesign::Fillet", "Fillet")
fillet.Base = (pocket3, edges_at(pocket3, [
    (24.7, -16.765, 3.794),
    (-26.94, -16.765, 3.794),
    (-26.94, 16.765, 5),
    (24.7, 16.765, 3.794),
]))
fillet.setExpression("Radius", "Params.fillet_radius")
doc.recompute()

fillet2 = body.newObject("PartDesign::Fillet", "Fillet001")
fillet2.Base = (fillet, edges_at(fillet, [
    (-25.94, -15.765, 0.589),
    (-25.94, 15.765, 0.589),
    (23.7, 15.765, 0.589),
    (23.7, -15.765, 0.589),
]))
fillet2.setExpression("Radius", "Params.fillet2_radius")

# Sketch on XY plane
sketch7 = body.newObject("Sketcher::SketchObject", "Sketch006")
sketch7.AttachmentSupport = (doc.getObject("XY_Plane"), [""])
sketch7.MapMode = "FlatFace"
sketch7.AttachmentOffset = App.Placement(App.Vector(0, 0, 1.789), App.Rotation())
sketch7.addGeometry(Part.Circle(App.Vector(-23.29, 13.115, 0), App.Vector(0, 0, 1), 1.65), False)
sketch7.addConstraint([
    Sketcher.Constraint("Diameter", 0, 3.3),
    Sketcher.Constraint("DistanceX", 0, 3, -1, 1, 23.29),
    Sketcher.Constraint("DistanceY", -1, 1, 0, 3, 13.115),
])
sketch7.setExpression("Constraints[0]", "Params.sketch7_diameter")
pocket4 = body.newObject("PartDesign::Pocket", "Pocket003")
pocket4.Profile = sketch7
pocket4.setExpression("Length", "Params.pocket4_length")
pocket4.Reversed = True

# Sketch on XY plane
sketch8 = body.newObject("Sketcher::SketchObject", "Sketch007")
sketch8.AttachmentSupport = (doc.getObject("XY_Plane"), [""])
sketch8.MapMode = "FlatFace"
sketch8.AttachmentOffset = App.Placement(App.Vector(0, 0, 6), App.Rotation())
sketch8.addGeometry([
    Part.LineSegment(App.Vector(-23.29, 9.8241, 0), App.Vector(-20.44, 11.4696, 0)),  # 0
    Part.LineSegment(App.Vector(-20.44, 11.4696, 0), App.Vector(-20.44, 14.7604, 0)),  # 1
    Part.LineSegment(App.Vector(-20.44, 14.7604, 0), App.Vector(-23.29, 16.4059, 0)),  # 2
    Part.LineSegment(App.Vector(-23.29, 16.4059, 0), App.Vector(-26.14, 14.7604, 0)),  # 3
    Part.LineSegment(App.Vector(-26.14, 14.7604, 0), App.Vector(-26.14, 11.4696, 0)),  # 4
    Part.LineSegment(App.Vector(-26.14, 11.4696, 0), App.Vector(-23.29, 9.8241, 0)),  # 5
], False)
sketch8.addConstraint([
    Sketcher.Constraint("Coincident", 0, 2, 1, 1),
    Sketcher.Constraint("Coincident", 1, 2, 2, 1),
    Sketcher.Constraint("Coincident", 2, 2, 3, 1),
    Sketcher.Constraint("Coincident", 3, 2, 4, 1),
    Sketcher.Constraint("Coincident", 4, 2, 5, 1),
    Sketcher.Constraint("Coincident", 5, 2, 0, 1),
    Sketcher.Constraint("Vertical", 1),
    Sketcher.Constraint("Vertical", 4),
    Sketcher.Constraint("Parallel", 0, 3),
    Sketcher.Constraint("Parallel", 2, 5),
    Sketcher.Constraint("Horizontal", 1, 2, 3, 2),
    Sketcher.Constraint("Horizontal", 0, 2, 4, 2),
    Sketcher.Constraint("Vertical", 2, 2, 5, 2),
    Sketcher.Constraint("DistanceX", 3, 2, 1, 2, 5.7),
    Sketcher.Constraint("Angle", 0, Q("30.0008 deg")),
    Sketcher.Constraint("DistanceX", 0, 2, -1, 1, 20.44),
    Sketcher.Constraint("DistanceY", 1, 1, 1, 2, 3.2908),
    Sketcher.Constraint("DistanceY", -1, 1, 2, 2, 16.406),
])
pocket5 = body.newObject("PartDesign::Pocket", "Pocket004")
pocket5.Profile = sketch8
pocket5.setExpression("Length", "Params.pocket5_length")

doc.recompute()
